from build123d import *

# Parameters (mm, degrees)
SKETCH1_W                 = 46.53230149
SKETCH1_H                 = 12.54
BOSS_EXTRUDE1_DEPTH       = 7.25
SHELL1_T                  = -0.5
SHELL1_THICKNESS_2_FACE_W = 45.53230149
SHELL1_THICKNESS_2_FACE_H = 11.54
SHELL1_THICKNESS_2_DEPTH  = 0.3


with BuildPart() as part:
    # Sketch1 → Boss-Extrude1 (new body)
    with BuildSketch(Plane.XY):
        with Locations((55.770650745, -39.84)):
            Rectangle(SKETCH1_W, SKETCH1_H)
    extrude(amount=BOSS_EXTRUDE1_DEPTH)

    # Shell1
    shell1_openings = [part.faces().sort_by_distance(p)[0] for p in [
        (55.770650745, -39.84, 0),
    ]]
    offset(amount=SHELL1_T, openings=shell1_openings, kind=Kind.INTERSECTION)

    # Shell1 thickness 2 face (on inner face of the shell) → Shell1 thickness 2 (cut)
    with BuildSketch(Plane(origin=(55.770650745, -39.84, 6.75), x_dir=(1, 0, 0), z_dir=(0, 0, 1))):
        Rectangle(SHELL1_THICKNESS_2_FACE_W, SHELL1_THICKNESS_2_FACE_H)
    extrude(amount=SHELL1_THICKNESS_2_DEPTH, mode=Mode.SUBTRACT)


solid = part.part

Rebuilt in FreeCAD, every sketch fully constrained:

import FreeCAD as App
import Part
import Sketcher

V = App.Vector


def faces_at(feature, points):
    """Names of the faces that lie closest to the given points."""
    faces = feature.Shape.Faces
    near = lambda p: min(range(len(faces)), key=lambda i: faces[i].distToShape(Part.Vertex(*p))[0])
    return sorted({f"Face{near(p) + 1}" for p in points})

doc = App.newDocument("Part")
body = doc.addObject("PartDesign::Body", "Body")

# Sketch on XY plane
sketch1 = body.newObject("Sketcher::SketchObject", "Sketch")
sketch1.AttachmentSupport = (doc.getObject("XY_Plane"), [""])
sketch1.MapMode = "FlatFace"
sketch1.addGeometry(Part.LineSegment(V(32.5045, -33.57, 0), V(32.5045, -46.11, 0)), False)
sketch1.addGeometry(Part.LineSegment(V(32.5045, -46.11, 0), V(79.036801, -46.11, 0)), False)
sketch1.addGeometry(Part.LineSegment(V(79.036801, -46.11, 0), V(79.036801, -33.57, 0)), False)
sketch1.addGeometry(Part.LineSegment(V(79.036801, -33.57, 0), V(32.5045, -33.57, 0)), False)
sketch1.addConstraint(Sketcher.Constraint("Coincident", 0, 2, 1, 1))
sketch1.addConstraint(Sketcher.Constraint("Coincident", 1, 2, 2, 1))
sketch1.addConstraint(Sketcher.Constraint("Coincident", 2, 2, 3, 1))
sketch1.addConstraint(Sketcher.Constraint("Coincident", 3, 2, 0, 1))
sketch1.addConstraint(Sketcher.Constraint("Vertical", 0))
sketch1.addConstraint(Sketcher.Constraint("Horizontal", 1))
sketch1.addConstraint(Sketcher.Constraint("Vertical", 2))
sketch1.addConstraint(Sketcher.Constraint("Horizontal", 3))
sketch1.addConstraint(Sketcher.Constraint("DistanceY", 0, 2, 0, 1, 12.54))
sketch1.addConstraint(Sketcher.Constraint("DistanceY", 0, 2, -1, 1, 46.11))
sketch1.addConstraint(Sketcher.Constraint("DistanceX", 1, 1, 1, 2, 46.532301))
sketch1.addConstraint(Sketcher.Constraint("DistanceX", -1, 1, 0, 2, 32.5045))
pad1 = body.newObject("PartDesign::Pad", "Pad")
pad1.Profile = sketch1
pad1.Length = 7.25
doc.recompute()

thickness = body.newObject("PartDesign::Thickness", "Thickness")
thickness.Base = (pad1, faces_at(pad1, [(55.771, -39.84, 0)]))
thickness.Value = 0.5
thickness.Reversed = True
thickness.Join = "Intersection"

# Sketch on XY plane
sketch2 = body.newObject("Sketcher::SketchObject", "Sketch001")
sketch2.AttachmentSupport = (doc.getObject("XY_Plane"), [""])
sketch2.MapMode = "FlatFace"
sketch2.AttachmentOffset = App.Placement(V(0, 0, 6.75), App.Rotation())
sketch2.addGeometry(Part.LineSegment(V(33.0045, -34.07, 0), V(33.0045, -45.61, 0)), False)
sketch2.addGeometry(Part.LineSegment(V(33.0045, -45.61, 0), V(78.536801, -45.61, 0)), False)
sketch2.addGeometry(Part.LineSegment(V(78.536801, -45.61, 0), V(78.536801, -34.07, 0)), False)
sketch2.addGeometry(Part.LineSegment(V(78.536801, -34.07, 0), V(33.0045, -34.07, 0)), False)
sketch2.addConstraint(Sketcher.Constraint("Coincident", 0, 2, 1, 1))
sketch2.addConstraint(Sketcher.Constraint("Coincident", 1, 2, 2, 1))
sketch2.addConstraint(Sketcher.Constraint("Coincident", 2, 2, 3, 1))
sketch2.addConstraint(Sketcher.Constraint("Coincident", 3, 2, 0, 1))
sketch2.addConstraint(Sketcher.Constraint("Vertical", 0))
sketch2.addConstraint(Sketcher.Constraint("Horizontal", 1))
sketch2.addConstraint(Sketcher.Constraint("Vertical", 2))
sketch2.addConstraint(Sketcher.Constraint("Horizontal", 3))
sketch2.addConstraint(Sketcher.Constraint("DistanceY", 0, 2, 0, 1, 11.54))
sketch2.addConstraint(Sketcher.Constraint("DistanceY", 0, 2, -1, 1, 45.61))
sketch2.addConstraint(Sketcher.Constraint("DistanceX", 1, 1, 1, 2, 45.532301))
sketch2.addConstraint(Sketcher.Constraint("DistanceX", -1, 1, 0, 2, 33.0045))
pocket1 = body.newObject("PartDesign::Pocket", "Pocket")
pocket1.Profile = sketch2
pocket1.Length = 0.3
pocket1.Reversed = True

doc.recompute()
